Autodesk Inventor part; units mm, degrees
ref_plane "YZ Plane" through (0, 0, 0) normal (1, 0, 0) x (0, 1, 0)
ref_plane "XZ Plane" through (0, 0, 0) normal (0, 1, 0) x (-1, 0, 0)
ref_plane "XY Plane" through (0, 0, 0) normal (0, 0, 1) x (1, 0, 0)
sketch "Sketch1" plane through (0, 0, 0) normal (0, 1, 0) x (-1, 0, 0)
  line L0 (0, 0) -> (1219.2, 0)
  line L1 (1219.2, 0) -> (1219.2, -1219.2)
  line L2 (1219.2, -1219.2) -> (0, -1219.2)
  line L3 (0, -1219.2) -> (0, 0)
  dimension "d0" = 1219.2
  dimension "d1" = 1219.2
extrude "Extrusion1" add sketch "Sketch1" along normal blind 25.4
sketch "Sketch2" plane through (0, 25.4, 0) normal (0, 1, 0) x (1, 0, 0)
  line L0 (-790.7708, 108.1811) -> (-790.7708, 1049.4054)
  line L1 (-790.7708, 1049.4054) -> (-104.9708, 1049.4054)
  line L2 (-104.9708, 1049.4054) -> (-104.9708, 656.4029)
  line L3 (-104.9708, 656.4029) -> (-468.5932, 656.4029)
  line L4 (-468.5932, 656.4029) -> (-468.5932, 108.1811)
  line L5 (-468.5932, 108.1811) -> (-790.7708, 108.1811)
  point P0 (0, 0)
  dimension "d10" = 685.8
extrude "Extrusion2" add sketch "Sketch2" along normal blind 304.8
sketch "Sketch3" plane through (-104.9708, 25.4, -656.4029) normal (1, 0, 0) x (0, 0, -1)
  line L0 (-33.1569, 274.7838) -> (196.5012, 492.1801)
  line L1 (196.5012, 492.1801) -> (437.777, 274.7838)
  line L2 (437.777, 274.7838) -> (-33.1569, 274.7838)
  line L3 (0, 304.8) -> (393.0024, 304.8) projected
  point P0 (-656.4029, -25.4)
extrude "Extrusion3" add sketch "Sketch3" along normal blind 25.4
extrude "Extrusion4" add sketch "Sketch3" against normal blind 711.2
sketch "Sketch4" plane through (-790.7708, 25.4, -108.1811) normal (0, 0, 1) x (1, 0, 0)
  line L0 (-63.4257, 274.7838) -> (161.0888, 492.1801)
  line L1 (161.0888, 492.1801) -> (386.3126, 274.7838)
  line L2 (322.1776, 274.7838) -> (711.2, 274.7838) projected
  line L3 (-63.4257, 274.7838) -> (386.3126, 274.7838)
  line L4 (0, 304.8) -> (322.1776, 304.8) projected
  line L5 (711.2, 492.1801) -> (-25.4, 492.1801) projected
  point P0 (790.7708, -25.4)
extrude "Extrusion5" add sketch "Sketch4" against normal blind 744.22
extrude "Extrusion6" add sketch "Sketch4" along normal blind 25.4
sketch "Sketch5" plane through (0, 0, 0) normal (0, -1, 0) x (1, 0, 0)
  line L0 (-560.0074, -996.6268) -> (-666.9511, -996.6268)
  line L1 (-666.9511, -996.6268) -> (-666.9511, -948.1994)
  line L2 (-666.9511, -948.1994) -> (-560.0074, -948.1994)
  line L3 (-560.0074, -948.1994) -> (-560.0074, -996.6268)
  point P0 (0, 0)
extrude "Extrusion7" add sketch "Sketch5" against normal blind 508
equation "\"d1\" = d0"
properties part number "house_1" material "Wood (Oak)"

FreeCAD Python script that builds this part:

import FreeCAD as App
import Part
import Sketcher
Q = App.Units.Quantity

doc = App.newDocument("Part")
body = doc.addObject("PartDesign::Body", "Body")

sketch1 = doc.addObject("Sketcher::SketchObject", "Sketch")
body.addObject(sketch1)
sketch1.AttachmentSupport = (doc.XZ_Plane, [""])
sketch1.MapMode = "FlatFace"
sketch1.addGeometry([
    Part.LineSegment(App.Vector(-1219.2, 0, 0), App.Vector(0, 0, 0)),
    Part.LineSegment(App.Vector(0, 0, 0), App.Vector(0, -1219.2, 0)),
    Part.LineSegment(App.Vector(0, -1219.2, 0), App.Vector(-1219.2, -1219.2, 0)),
    Part.LineSegment(App.Vector(-1219.2, -1219.2, 0), App.Vector(-1219.2, 0, 0)),
], False)
sketch1.addConstraint([
    Sketcher.Constraint("Coincident", 0, 2, 1, 1),
    Sketcher.Constraint("Coincident", 1, 2, 2, 1),
    Sketcher.Constraint("Coincident", 2, 2, 3, 1),
    Sketcher.Constraint("Coincident", 3, 2, 0, 1),
    Sketcher.Constraint("Horizontal", 0),
    Sketcher.Constraint("Vertical", 1),
    Sketcher.Constraint("Horizontal", 2),
    Sketcher.Constraint("Vertical", 3),
    Sketcher.Constraint("Coincident", 0, 2, -1, 1),
    Sketcher.Constraint("Equal", 2, 1),
    Sketcher.Constraint("DistanceX", 0, 1, 0, 2, Q("48 in")),
])
pad1 = doc.addObject("PartDesign::Pad", "Pad")
body.addObject(pad1)
pad1.Profile = sketch1
pad1.Length = Q("1 in")
pad1.Reversed = True

sketch2 = doc.addObject("Sketcher::SketchObject", "Sketch001")
body.addObject(sketch2)
sketch2.AttachmentSupport = (doc.XZ_Plane, [""])
sketch2.MapMode = "FlatFace"
sketch2.AttachmentOffset = App.Placement(App.Vector(0, 0, -1 * 25.4), App.Rotation())
sketch2.addGeometry([
    Part.LineSegment(App.Vector(-790.7708, -1049.4054, 0), App.Vector(-790.7708, -108.1811, 0)),
    Part.LineSegment(App.Vector(-790.7708, -108.1811, 0), App.Vector(-468.5932, -108.1811, 0)),
    Part.LineSegment(App.Vector(-468.5932, -108.1811, 0), App.Vector(-468.5932, -656.4029, 0)),
    Part.LineSegment(App.Vector(-468.5932, -656.4029, 0), App.Vector(-104.9708, -656.4029, 0)),
    Part.LineSegment(App.Vector(-104.9708, -656.4029, 0), App.Vector(-104.9708, -1049.4054, 0)),
    Part.LineSegment(App.Vector(-104.9708, -1049.4054, 0), App.Vector(-790.7708, -1049.4054, 0)),
], False)
sketch2.addConstraint([
    Sketcher.Constraint("Coincident", 0, 2, 1, 1),
    Sketcher.Constraint("Coincident", 1, 2, 2, 1),
    Sketcher.Constraint("Coincident", 2, 2, 3, 1),
    Sketcher.Constraint("Coincident", 3, 2, 4, 1),
    Sketcher.Constraint("Coincident", 4, 2, 5, 1),
    Sketcher.Constraint("Coincident", 5, 2, 0, 1),
    Sketcher.Constraint("Vertical", 0),
    Sketcher.Constraint("Horizontal", 1),
    Sketcher.Constraint("Vertical", 2),
    Sketcher.Constraint("Horizontal", 3),
    Sketcher.Constraint("Vertical", 4),
    Sketcher.Constraint("Horizontal", 5),
    Sketcher.Constraint("DistanceX", 5, 2, 5, 1, Q("27 in")),
    Sketcher.Constraint("DistanceX", 1, 1, 1, 2, Q("322.1776 mm")),
    Sketcher.Constraint("DistanceY", 0, 1, 0, 2, Q("941.2243 mm")),
    Sketcher.Constraint("DistanceY", 2, 2, 2, 1, Q("548.2218 mm")),
    Sketcher.Constraint("DistanceX", 0, 2, -1, 1, Q("31.1327 in")),
    Sketcher.Constraint("DistanceY", 0, 2, -1, 1, Q("4.2591 in")),
])
pad2 = doc.addObject("PartDesign::Pad", "Pad001")
body.addObject(pad2)
pad2.Profile = sketch2
pad2.Length = Q("12 in")
pad2.Reversed = True

sketch3 = doc.addObject("Sketcher::SketchObject", "Sketch002")
body.addObject(sketch3)
sketch3.AttachmentSupport = (doc.YZ_Plane, [""])
sketch3.MapMode = "FlatFace"
sketch3.AttachmentOffset = App.Placement(App.Vector(0, 0, -4.1327087 * 25.4), App.Rotation())
sketch3.addGeometry([
    Part.LineSegment(App.Vector(517.5801, -852.9041, 0), App.Vector(300.1838, -623.246, 0)),
    Part.LineSegment(App.Vector(300.1838, -623.246, 0), App.Vector(300.1838, -1094.1799, 0)),
    Part.LineSegment(App.Vector(300.1838, -1094.1799, 0), App.Vector(517.5801, -852.9041, 0)),
], False)
sketch3.addConstraint([
    Sketcher.Constraint("Coincident", 0, 2, 1, 1),
    Sketcher.Constraint("Coincident", 1, 2, 2, 1),
    Sketcher.Constraint("Coincident", 2, 2, 0, 1),
    Sketcher.Constraint("Vertical", 1),
    Sketcher.Constraint("Angle", 0, Q("133.429 deg")),
    Sketcher.Constraint("Angle", 2, Q("47.9803 deg")),
    Sketcher.Constraint("DistanceY", 1, 2, 1, 1, Q("18.5407 in")),
    Sketcher.Constraint("DistanceY", 2, 2, -1, 1, Q("33.5789 in")),
    Sketcher.Constraint("DistanceX", -1, 1, 0, 2, Q("300.1838 mm")),
])
pad3 = doc.addObject("PartDesign::Pad", "Pad002")
body.addObject(pad3)
pad3.Profile = sketch3
pad3.Length = Q("1 in")

sketch4 = doc.addObject("Sketcher::SketchObject", "Sketch003")
body.addObject(sketch4)
sketch4.AttachmentSupport = (doc.YZ_Plane, [""])
sketch4.MapMode = "FlatFace"
sketch4.AttachmentOffset = App.Placement(App.Vector(0, 0, -4.1327087 * 25.4), App.Rotation())
sketch4.addGeometry([
    Part.LineSegment(App.Vector(517.5801, -852.9041, 0), App.Vector(300.1838, -623.246, 0)),
    Part.LineSegment(App.Vector(300.1838, -623.246, 0), App.Vector(300.1838, -1094.1799, 0)),
    Part.LineSegment(App.Vector(300.1838, -1094.1799, 0), App.Vector(517.5801, -852.9041, 0)),
], False)
sketch4.addConstraint([
    Sketcher.Constraint("Coincident", 0, 2, 1, 1),
    Sketcher.Constraint("Coincident", 1, 2, 2, 1),
    Sketcher.Constraint("Coincident", 2, 2, 0, 1),
    Sketcher.Constraint("Vertical", 1),
    Sketcher.Constraint("Angle", 0, Q("133.429 deg")),
    Sketcher.Constraint("Angle", 2, Q("47.9803 deg")),
    Sketcher.Constraint("DistanceY", 1, 2, 1, 1, Q("18.5407 in")),
    Sketcher.Constraint("DistanceY", 2, 2, -1, 1, Q("33.5789 in")),
    Sketcher.Constraint("DistanceX", -1, 1, 0, 2, Q("300.1838 mm")),
])
pad4 = doc.addObject("PartDesign::Pad", "Pad003")
body.addObject(pad4)
pad4.Profile = sketch4
pad4.Length = Q("28 in")
pad4.Reversed = True

sketch5 = doc.addObject("Sketcher::SketchObject", "Sketch004")
body.addObject(sketch5)
sketch5.AttachmentSupport = (doc.XY_Plane, [""])
sketch5.MapMode = "FlatFace"
sketch5.AttachmentOffset = App.Placement(App.Vector(0, 0, -4.2590984 * 25.4), App.Rotation())
sketch5.addGeometry([
    Part.LineSegment(App.Vector(-629.682, 517.5801, 0), App.Vector(-854.1965, 300.1838, 0)),
    Part.LineSegment(App.Vector(-854.1965, 300.1838, 0), App.Vector(-404.4582, 300.1838, 0)),
    Part.LineSegment(App.Vector(-404.4582, 300.1838, 0), App.Vector(-629.682, 517.5801, 0)),
], False)
sketch5.addConstraint([
    Sketcher.Constraint("Coincident", 0, 2, 1, 1),
    Sketcher.Constraint("Coincident", 1, 2, 2, 1),
    Sketcher.Constraint("Coincident", 2, 2, 0, 1),
    Sketcher.Constraint("Horizontal", 1),
    Sketcher.Constraint("DistanceX", 1, 1, 1, 2, Q("449.7383 mm")),
    Sketcher.Constraint("DistanceY", 0, 2, 2, 2, Q("8.5589 in")),
    Sketcher.Constraint("Distance", 0, Q("312.5187 mm")),
    Sketcher.Constraint("DistanceX", 0, 2, -1, 1, Q("854.1965 mm")),
    Sketcher.Constraint("DistanceY", -1, 1, 0, 2, Q("300.1838 mm")),
])
pad5 = doc.addObject("PartDesign::Pad", "Pad004")
body.addObject(pad5)
pad5.Profile = sketch5
pad5.Length = Q("29.3 in")
pad5.Reversed = True

sketch6 = doc.addObject("Sketcher::SketchObject", "Sketch005")
body.addObject(sketch6)
sketch6.AttachmentSupport = (doc.XY_Plane, [""])
sketch6.MapMode = "FlatFace"
sketch6.AttachmentOffset = App.Placement(App.Vector(0, 0, -4.2590984 * 25.4), App.Rotation())
sketch6.addGeometry([
    Part.LineSegment(App.Vector(-629.682, 517.5801, 0), App.Vector(-854.1965, 300.1838, 0)),
    Part.LineSegment(App.Vector(-854.1965, 300.1838, 0), App.Vector(-404.4582, 300.1838, 0)),
    Part.LineSegment(App.Vector(-404.4582, 300.1838, 0), App.Vector(-629.682, 517.5801, 0)),
], False)
sketch6.addConstraint([
    Sketcher.Constraint("Coincident", 0, 2, 1, 1),
    Sketcher.Constraint("Coincident", 1, 2, 2, 1),
    Sketcher.Constraint("Coincident", 2, 2, 0, 1),
    Sketcher.Constraint("Horizontal", 1),
    Sketcher.Constraint("DistanceX", 1, 1, 1, 2, Q("449.7383 mm")),
    Sketcher.Constraint("DistanceY", 0, 2, 2, 2, Q("8.5589 in")),
    Sketcher.Constraint("Distance", 0, Q("312.5187 mm")),
    Sketcher.Constraint("DistanceX", 0, 2, -1, 1, Q("854.1965 mm")),
    Sketcher.Constraint("DistanceY", -1, 1, 0, 2, Q("300.1838 mm")),
])
pad6 = doc.addObject("PartDesign::Pad", "Pad005")
body.addObject(pad6)
pad6.Profile = sketch6
pad6.Length = Q("1 in")

sketch7 = doc.addObject("Sketcher::SketchObject", "Sketch006")
body.addObject(sketch7)
sketch7.AttachmentSupport = (doc.XZ_Plane, [""])
sketch7.MapMode = "FlatFace"
sketch7.addGeometry([
    Part.LineSegment(App.Vector(-666.9511, -996.6268, 0), App.Vector(-560.0074, -996.6268, 0)),
    Part.LineSegment(App.Vector(-560.0074, -996.6268, 0), App.Vector(-560.0074, -948.1994, 0)),
    Part.LineSegment(App.Vector(-560.0074, -948.1994, 0), App.Vector(-666.9511, -948.1994, 0)),
    Part.LineSegment(App.Vector(-666.9511, -948.1994, 0), App.Vector(-666.9511, -996.6268, 0)),
], False)
sketch7.addConstraint([
    Sketcher.Constraint("Coincident", 0, 2, 1, 1),
    Sketcher.Constraint("Coincident", 1, 2, 2, 1),
    Sketcher.Constraint("Coincident", 2, 2, 3, 1),
    Sketcher.Constraint("Coincident", 3, 2, 0, 1),
    Sketcher.Constraint("Horizontal", 0),
    Sketcher.Constraint("Vertical", 1),
    Sketcher.Constraint("Horizontal", 2),
    Sketcher.Constraint("Vertical", 3),
    Sketcher.Constraint("DistanceY", 1, 1, 1, 2, Q("1.9066 in")),
    Sketcher.Constraint("DistanceX", 0, 1, 0, 2, Q("106.9437 mm")),
    Sketcher.Constraint("DistanceX", 0, 2, -1, 1, Q("560.0074 mm")),
    Sketcher.Constraint("DistanceY", 0, 2, -1, 1, Q("996.6268 mm")),
])
pad7 = doc.addObject("PartDesign::Pad", "Pad006")
body.addObject(pad7)
pad7.Profile = sketch7
pad7.Length = Q("20 in")
pad7.Reversed = True

doc.recompute()
